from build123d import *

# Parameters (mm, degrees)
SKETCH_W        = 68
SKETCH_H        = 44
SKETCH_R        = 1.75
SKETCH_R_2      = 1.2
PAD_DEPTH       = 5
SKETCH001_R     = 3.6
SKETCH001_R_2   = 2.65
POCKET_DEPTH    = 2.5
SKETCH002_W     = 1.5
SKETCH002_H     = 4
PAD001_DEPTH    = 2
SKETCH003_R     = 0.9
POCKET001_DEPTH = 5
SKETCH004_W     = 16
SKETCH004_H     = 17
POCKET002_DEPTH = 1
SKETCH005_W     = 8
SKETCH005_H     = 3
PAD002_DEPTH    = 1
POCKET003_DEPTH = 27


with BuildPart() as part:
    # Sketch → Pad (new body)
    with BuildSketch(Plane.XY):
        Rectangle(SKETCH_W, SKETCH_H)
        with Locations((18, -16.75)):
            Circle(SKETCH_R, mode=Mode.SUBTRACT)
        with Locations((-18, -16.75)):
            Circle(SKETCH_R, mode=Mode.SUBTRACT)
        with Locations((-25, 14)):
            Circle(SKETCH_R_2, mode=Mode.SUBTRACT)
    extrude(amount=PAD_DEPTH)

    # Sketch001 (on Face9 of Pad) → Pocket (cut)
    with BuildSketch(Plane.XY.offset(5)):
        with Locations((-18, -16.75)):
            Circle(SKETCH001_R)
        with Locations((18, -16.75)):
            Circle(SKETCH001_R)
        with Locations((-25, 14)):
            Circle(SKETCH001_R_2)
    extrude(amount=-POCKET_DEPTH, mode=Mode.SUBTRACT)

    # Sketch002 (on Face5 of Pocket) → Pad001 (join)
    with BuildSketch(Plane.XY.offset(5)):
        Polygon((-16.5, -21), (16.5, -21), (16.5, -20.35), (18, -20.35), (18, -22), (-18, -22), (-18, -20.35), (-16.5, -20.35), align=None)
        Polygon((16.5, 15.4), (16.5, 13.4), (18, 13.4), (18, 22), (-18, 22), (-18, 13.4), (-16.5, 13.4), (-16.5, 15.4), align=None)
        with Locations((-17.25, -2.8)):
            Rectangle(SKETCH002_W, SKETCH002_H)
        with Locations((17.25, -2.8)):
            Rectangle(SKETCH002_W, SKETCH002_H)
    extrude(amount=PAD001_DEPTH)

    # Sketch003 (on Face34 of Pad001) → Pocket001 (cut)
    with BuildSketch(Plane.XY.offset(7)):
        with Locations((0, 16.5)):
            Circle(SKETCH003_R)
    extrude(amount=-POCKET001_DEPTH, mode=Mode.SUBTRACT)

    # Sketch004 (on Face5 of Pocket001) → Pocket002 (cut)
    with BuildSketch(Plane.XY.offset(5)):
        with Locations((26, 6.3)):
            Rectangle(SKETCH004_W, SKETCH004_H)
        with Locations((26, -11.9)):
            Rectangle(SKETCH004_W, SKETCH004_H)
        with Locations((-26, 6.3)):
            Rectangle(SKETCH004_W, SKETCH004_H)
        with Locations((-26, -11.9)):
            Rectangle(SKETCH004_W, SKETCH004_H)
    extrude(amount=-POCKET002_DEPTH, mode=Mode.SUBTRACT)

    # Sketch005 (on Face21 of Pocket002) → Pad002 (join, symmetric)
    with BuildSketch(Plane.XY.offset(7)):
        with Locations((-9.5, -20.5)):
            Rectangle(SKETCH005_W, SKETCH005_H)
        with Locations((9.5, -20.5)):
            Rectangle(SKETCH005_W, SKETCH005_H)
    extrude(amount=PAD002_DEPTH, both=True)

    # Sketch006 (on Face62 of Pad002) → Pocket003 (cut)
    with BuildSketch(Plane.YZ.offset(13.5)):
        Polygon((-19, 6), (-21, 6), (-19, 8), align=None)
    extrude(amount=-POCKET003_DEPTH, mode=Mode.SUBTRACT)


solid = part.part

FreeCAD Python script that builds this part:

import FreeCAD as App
import Part
import Sketcher
Q = App.Units.Quantity


def add_polygon(sketch, points):
    """Adds a closed chain of lines whose ends are joined by coincident constraints."""
    first, n = sketch.GeometryCount, len(points)
    for a, b in zip(points, points[1:] + points[:1]):
        sketch.addGeometry(Part.LineSegment(App.Vector(*a, 0), App.Vector(*b, 0)), False)
    for i in range(n):
        sketch.addConstraint(Sketcher.Constraint("Coincident", first + i, 2, first + (i + 1) % n, 1))

doc = App.newDocument("Part")
body = doc.addObject("PartDesign::Body", "Body")

# Sketch on XY plane
sketch1 = doc.addObject("Sketcher::SketchObject", "Sketch")
body.addObject(sketch1)
sketch1.AttachmentSupport = (doc.XY_Plane, [""])
sketch1.MapMode = "FlatFace"
add_polygon(sketch1, [(-34, 22), (-34, -22), (34, -22), (34, 22)])  # lines 0-3
sketch1.addGeometry(Part.Circle(App.Vector(-18, -16.8, 0), App.Vector(0, 0, 1), 1.8), False)  # 4
sketch1.addGeometry(Part.Circle(App.Vector(18, -16.8, 0), App.Vector(0, 0, 1), 1.8), False)  # 5
sketch1.addGeometry(Part.Circle(App.Vector(-25, 14, 0), App.Vector(0, 0, 1), 1.2), False)  # 6
sketch1.addConstraint(Sketcher.Constraint("Vertical", 0))
sketch1.addConstraint(Sketcher.Constraint("Horizontal", 1))
sketch1.addConstraint(Sketcher.Constraint("Vertical", 2))
sketch1.addConstraint(Sketcher.Constraint("Horizontal", 3))
sketch1.addConstraint(Sketcher.Constraint("Equal", 4, 5))
sketch1.addConstraint(Sketcher.Constraint("Symmetric", 0, 2, 2, 2, -1, 1))
sketch1.addConstraint(Sketcher.Constraint("Symmetric", 4, 3, 5, 3, -2))
sketch1.addConstraint(Sketcher.Constraint("Diameter", 4, Q("3.5 mm")))
sketch1.addConstraint(Sketcher.Constraint("Diameter", 6, Q("2.4 mm")))
sketch1.addConstraint(Sketcher.Constraint("DistanceX", 1, 1, 1, 2, Q("68 mm")))
sketch1.addConstraint(Sketcher.Constraint("DistanceY", 0, 2, 0, 1, Q("44 mm")))
sketch1.addConstraint(Sketcher.Constraint("DistanceX", 4, 3, -1, 1, Q("18 mm")))
sketch1.addConstraint(Sketcher.Constraint("DistanceX", 6, 3, -1, 1, Q("25 mm")))
sketch1.addConstraint(Sketcher.Constraint("DistanceY", -1, 1, 6, 3, Q("14 mm")))
sketch1.addConstraint(Sketcher.Constraint("DistanceY", 4, 3, -1, 1, Q("16.75 mm")))
pad1 = doc.addObject("PartDesign::Pad", "Pad")
body.addObject(pad1)
pad1.Profile = sketch1
pad1.Length = 5

# Sketch on XY plane
sketch2 = doc.addObject("Sketcher::SketchObject", "Sketch001")
body.addObject(sketch2)
sketch2.AttachmentSupport = (doc.XY_Plane, [""])
sketch2.MapMode = "FlatFace"
sketch2.AttachmentOffset = App.Placement(App.Vector(0, 0, 5), App.Rotation())
sketch2.addGeometry(Part.Circle(App.Vector(-18, -16.8, 0), App.Vector(0, 0, 1), 3.6), False)
sketch2.addGeometry(Part.Circle(App.Vector(18, -16.8, 0), App.Vector(0, 0, 1), 3.6), False)
sketch2.addGeometry(Part.Circle(App.Vector(-25, 14, 0), App.Vector(0, 0, 1), 2.6), False)
sketch2.addConstraint(Sketcher.Constraint("Equal", 0, 1))
sketch2.addConstraint(Sketcher.Constraint("Symmetric", 0, 3, 1, 3, -2))
sketch2.addConstraint(Sketcher.Constraint("Diameter", 0, Q("7.2 mm")))
sketch2.addConstraint(Sketcher.Constraint("Diameter", 2, Q("5.3 mm")))
sketch2.addConstraint(Sketcher.Constraint("DistanceX", 0, 3, -1, 1, Q("18 mm")))
sketch2.addConstraint(Sketcher.Constraint("DistanceX", 2, 3, -1, 1, Q("25 mm")))
sketch2.addConstraint(Sketcher.Constraint("DistanceY", -1, 1, 2, 3, Q("14 mm")))
sketch2.addConstraint(Sketcher.Constraint("DistanceY", 0, 3, -1, 1, Q("16.75 mm")))
pocket1 = doc.addObject("PartDesign::Pocket", "Pocket")
body.addObject(pocket1)
pocket1.Profile = sketch2
pocket1.Length = 2.5

# Sketch on XY plane
sketch3 = doc.addObject("Sketcher::SketchObject", "Sketch002")
body.addObject(sketch3)
sketch3.AttachmentSupport = (doc.XY_Plane, [""])
sketch3.MapMode = "FlatFace"
sketch3.AttachmentOffset = App.Placement(App.Vector(0, 0, 5), App.Rotation())
add_polygon(sketch3, [(16.5, -21), (-16.5, -21), (-16.5, -20.4), (-18, -20.4), (-18, -22), (18, -22), (18, -20.4), (16.5, -20.4)])  # lines 0-7
add_polygon(sketch3, [(16.5, 15.4), (16.5, 13.4), (18, 13.4), (18, 22), (-18, 22), (-18, 13.4), (-16.5, 13.4), (-16.5, 15.4)])  # lines 8-15
add_polygon(sketch3, [(-18, -0.8), (-18, -4.8), (-16.5, -4.8), (-16.5, -0.8)])  # lines 16-19
add_polygon(sketch3, [(16.5, -0.8), (16.5, -4.8), (18, -4.8), (18, -0.8)])  # lines 20-23
sketch3.addConstraint(Sketcher.Constraint("Horizontal", 0))
sketch3.addConstraint(Sketcher.Constraint("Vertical", 1))
sketch3.addConstraint(Sketcher.Constraint("Horizontal", 2))
sketch3.addConstraint(Sketcher.Constraint("Vertical", 3))
sketch3.addConstraint(Sketcher.Constraint("Horizontal", 4))
sketch3.addConstraint(Sketcher.Constraint("Vertical", 5))
sketch3.addConstraint(Sketcher.Constraint("Horizontal", 6))
sketch3.addConstraint(Sketcher.Constraint("Vertical", 7))
sketch3.addConstraint(Sketcher.Constraint("Vertical", 8))
sketch3.addConstraint(Sketcher.Constraint("Horizontal", 9))
sketch3.addConstraint(Sketcher.Constraint("Vertical", 10))
sketch3.addConstraint(Sketcher.Constraint("Horizontal", 11))
sketch3.addConstraint(Sketcher.Constraint("Vertical", 12))
sketch3.addConstraint(Sketcher.Constraint("Horizontal", 13))
sketch3.addConstraint(Sketcher.Constraint("Vertical", 14))
sketch3.addConstraint(Sketcher.Constraint("Horizontal", 15))
sketch3.addConstraint(Sketcher.Constraint("Vertical", 16))
sketch3.addConstraint(Sketcher.Constraint("Horizontal", 17))
sketch3.addConstraint(Sketcher.Constraint("Vertical", 18))
sketch3.addConstraint(Sketcher.Constraint("Horizontal", 19))
sketch3.addConstraint(Sketcher.Constraint("Vertical", 20))
sketch3.addConstraint(Sketcher.Constraint("Horizontal", 21))
sketch3.addConstraint(Sketcher.Constraint("Vertical", 22))
sketch3.addConstraint(Sketcher.Constraint("Horizontal", 23))
sketch3.addConstraint(Sketcher.Constraint("Symmetric", 3, 2, 10, 2, -1, 1))
sketch3.addConstraint(Sketcher.Constraint("Symmetric", 2, 2, 5, 2, -2))
sketch3.addConstraint(Sketcher.Constraint("Symmetric", 9, 2, 12, 2, -2))
sketch3.addConstraint(Sketcher.Constraint("Symmetric", 17, 2, 20, 2, -2))
sketch3.addConstraint(Sketcher.Constraint("Symmetric", 19, 2, 22, 2, -2))
sketch3.addConstraint(Sketcher.Constraint("Vertical", 7, 2, 8, 2))
sketch3.addConstraint(Sketcher.Constraint("Vertical", 1, 2, 13, 2))
sketch3.addConstraint(Sketcher.Constraint("Vertical", 12, 2, 16, 2))
sketch3.addConstraint(Sketcher.Constraint("Vertical", 14, 2, 17, 2))
sketch3.addConstraint(Sketcher.Constraint("Vertical", 15, 2, 20, 2))
sketch3.addConstraint(Sketcher.Constraint("DistanceX", 0, 2, 0, 1, Q("33 mm")))
sketch3.addConstraint(Sketcher.Constraint("DistanceX", 4, 1, 4, 2, Q("36 mm")))
sketch3.addConstraint(Sketcher.Constraint("DistanceY", 8, 2, 8, 1, Q("2 mm")))
sketch3.addConstraint(Sketcher.Constraint("DistanceY", 16, 2, 16, 1, Q("4 mm")))
sketch3.addConstraint(Sketcher.Constraint("DistanceY", 10, 1, 10, 2, Q("8.6 mm")))
sketch3.addConstraint(Sketcher.Constraint("DistanceY", 0, 2, -1, 1, Q("21 mm")))
sketch3.addConstraint(Sketcher.Constraint("DistanceY", 3, 2, -1, 1, Q("22 mm")))
sketch3.addConstraint(Sketcher.Constraint("DistanceY", 1, 1, 1, 2, Q("0.65 mm")))
sketch3.addConstraint(Sketcher.Constraint("DistanceY", 16, 2, -1, 1, Q("4.8 mm")))
pad2 = doc.addObject("PartDesign::Pad", "Pad001")
body.addObject(pad2)
pad2.Profile = sketch3
pad2.Length = 2

# Sketch on XY plane
sketch4 = doc.addObject("Sketcher::SketchObject", "Sketch003")
body.addObject(sketch4)
sketch4.AttachmentSupport = (doc.XY_Plane, [""])
sketch4.MapMode = "FlatFace"
sketch4.AttachmentOffset = App.Placement(App.Vector(0, 0, 7), App.Rotation())
sketch4.addGeometry(Part.Circle(App.Vector(0, 16.5, 0), App.Vector(0, 0, 1), 0.9), False)
sketch4.addConstraint(Sketcher.Constraint("PointOnObject", 0, 3, -2))
sketch4.addConstraint(Sketcher.Constraint("Diameter", 0, Q("1.8 mm")))
sketch4.addConstraint(Sketcher.Constraint("DistanceY", -1, 1, 0, 3, Q("16.5 mm")))
pocket2 = doc.addObject("PartDesign::Pocket", "Pocket001")
body.addObject(pocket2)
pocket2.Profile = sketch4
pocket2.Length = 5

# Sketch on XY plane
sketch5 = doc.addObject("Sketcher::SketchObject", "Sketch004")
body.addObject(sketch5)
sketch5.AttachmentSupport = (doc.XY_Plane, [""])
sketch5.MapMode = "FlatFace"
sketch5.AttachmentOffset = App.Placement(App.Vector(0, 0, 5), App.Rotation())
add_polygon(sketch5, [(18, 15), (18, -2), (34, -2), (34, 15)])  # lines 0-3
add_polygon(sketch5, [(18, -3), (18, -20), (34, -20), (34, -3)])  # lines 4-7
add_polygon(sketch5, [(-34, 15), (-34, -2), (-18, -2), (-18, 15)])  # lines 8-11
add_polygon(sketch5, [(-34, -3), (-34, -20), (-18, -20), (-18, -3)])  # lines 12-15
sketch5.addConstraint(Sketcher.Constraint("Vertical", 0))
sketch5.addConstraint(Sketcher.Constraint("Horizontal", 1))
sketch5.addConstraint(Sketcher.Constraint("Vertical", 2))
sketch5.addConstraint(Sketcher.Constraint("Horizontal", 3))
sketch5.addConstraint(Sketcher.Constraint("Vertical", 4))
sketch5.addConstraint(Sketcher.Constraint("Horizontal", 5))
sketch5.addConstraint(Sketcher.Constraint("Vertical", 6))
sketch5.addConstraint(Sketcher.Constraint("Horizontal", 7))
sketch5.addConstraint(Sketcher.Constraint("Vertical", 8))
sketch5.addConstraint(Sketcher.Constraint("Horizontal", 9))
sketch5.addConstraint(Sketcher.Constraint("Vertical", 10))
sketch5.addConstraint(Sketcher.Constraint("Horizontal", 11))
sketch5.addConstraint(Sketcher.Constraint("Vertical", 12))
sketch5.addConstraint(Sketcher.Constraint("Horizontal", 13))
sketch5.addConstraint(Sketcher.Constraint("Vertical", 14))
sketch5.addConstraint(Sketcher.Constraint("Horizontal", 15))
sketch5.addConstraint(Sketcher.Constraint("Symmetric", 1, 2, 8, 2, -2))
sketch5.addConstraint(Sketcher.Constraint("Symmetric", 3, 2, 10, 2, -2))
sketch5.addConstraint(Sketcher.Constraint("Symmetric", 5, 2, 12, 2, -2))
sketch5.addConstraint(Sketcher.Constraint("Symmetric", 7, 2, 14, 2, -2))
sketch5.addConstraint(Sketcher.Constraint("Vertical", 3, 2, 4, 2))
sketch5.addConstraint(Sketcher.Constraint("Vertical", 2, 2, 5, 2))
sketch5.addConstraint(Sketcher.Constraint("Equal", 2, 4))
sketch5.addConstraint(Sketcher.Constraint("DistanceX", 1, 1, 1, 2, Q("16 mm")))
sketch5.addConstraint(Sketcher.Constraint("DistanceY", 0, 2, 0, 1, Q("17 mm")))
sketch5.addConstraint(Sketcher.Constraint("DistanceX", -1, 1, 0, 2, Q("18 mm")))
sketch5.addConstraint(Sketcher.Constraint("DistanceY", 0, 2, -1, 1, Q("2.2 mm")))
sketch5.addConstraint(Sketcher.Constraint("DistanceY", 4, 2, -1, 1, Q("20.4 mm")))
pocket3 = doc.addObject("PartDesign::Pocket", "Pocket002")
body.addObject(pocket3)
pocket3.Profile = sketch5
pocket3.Length = 1

# Sketch on XY plane
sketch6 = doc.addObject("Sketcher::SketchObject", "Sketch005")
body.addObject(sketch6)
sketch6.AttachmentSupport = (doc.XY_Plane, [""])
sketch6.MapMode = "FlatFace"
sketch6.AttachmentOffset = App.Placement(App.Vector(0, 0, 7), App.Rotation())
add_polygon(sketch6, [(-13.5, -19), (-13.5, -22), (-5.5, -22), (-5.5, -19)])  # lines 0-3
add_polygon(sketch6, [(5.5, -19), (5.5, -22), (13.5, -22), (13.5, -19)])  # lines 4-7
sketch6.addConstraint(Sketcher.Constraint("Vertical", 0))
sketch6.addConstraint(Sketcher.Constraint("Horizontal", 1))
sketch6.addConstraint(Sketcher.Constraint("Vertical", 2))
sketch6.addConstraint(Sketcher.Constraint("Horizontal", 3))
sketch6.addConstraint(Sketcher.Constraint("Vertical", 4))
sketch6.addConstraint(Sketcher.Constraint("Horizontal", 5))
sketch6.addConstraint(Sketcher.Constraint("Vertical", 6))
sketch6.addConstraint(Sketcher.Constraint("Horizontal", 7))
sketch6.addConstraint(Sketcher.Constraint("Symmetric", 1, 2, 4, 2, -2))
sketch6.addConstraint(Sketcher.Constraint("Symmetric", 3, 2, 6, 2, -2))
sketch6.addConstraint(Sketcher.Constraint("DistanceX", 1, 1, 1, 2, Q("8 mm")))
sketch6.addConstraint(Sketcher.Constraint("DistanceY", 0, 2, 0, 1, Q("3 mm")))
sketch6.addConstraint(Sketcher.Constraint("DistanceY", 0, 2, -1, 1, Q("22 mm")))
sketch6.addConstraint(Sketcher.Constraint("DistanceX", 1, 2, 4, 2, Q("11 mm")))
pad3 = doc.addObject("PartDesign::Pad", "Pad002")
body.addObject(pad3)
pad3.Profile = sketch6
pad3.Length = 2
pad3.Midplane = True

# Sketch on YZ plane
sketch7 = doc.addObject("Sketcher::SketchObject", "Sketch006")
body.addObject(sketch7)
sketch7.AttachmentSupport = (doc.YZ_Plane, [""])
sketch7.MapMode = "FlatFace"
sketch7.AttachmentOffset = App.Placement(App.Vector(0, 0, 13.5), App.Rotation())
add_polygon(sketch7, [(-21, 6), (-19, 6), (-19, 8)])  # lines 0-2
sketch7.addConstraint(Sketcher.Constraint("Horizontal", 0))
sketch7.addConstraint(Sketcher.Constraint("Vertical", 1))
sketch7.addConstraint(Sketcher.Constraint("Equal", 0, 1))
sketch7.addConstraint(Sketcher.Constraint("DistanceX", 0, 1, 0, 2, Q("2 mm")))
sketch7.addConstraint(Sketcher.Constraint("DistanceX", 0, 2, -1, 1, Q("19 mm")))
sketch7.addConstraint(Sketcher.Constraint("DistanceY", -1, 1, 0, 2, Q("6 mm")))
pocket4 = doc.addObject("PartDesign::Pocket", "Pocket003")
body.addObject(pocket4)
pocket4.Profile = sketch7
pocket4.Length = 27

doc.recompute()
